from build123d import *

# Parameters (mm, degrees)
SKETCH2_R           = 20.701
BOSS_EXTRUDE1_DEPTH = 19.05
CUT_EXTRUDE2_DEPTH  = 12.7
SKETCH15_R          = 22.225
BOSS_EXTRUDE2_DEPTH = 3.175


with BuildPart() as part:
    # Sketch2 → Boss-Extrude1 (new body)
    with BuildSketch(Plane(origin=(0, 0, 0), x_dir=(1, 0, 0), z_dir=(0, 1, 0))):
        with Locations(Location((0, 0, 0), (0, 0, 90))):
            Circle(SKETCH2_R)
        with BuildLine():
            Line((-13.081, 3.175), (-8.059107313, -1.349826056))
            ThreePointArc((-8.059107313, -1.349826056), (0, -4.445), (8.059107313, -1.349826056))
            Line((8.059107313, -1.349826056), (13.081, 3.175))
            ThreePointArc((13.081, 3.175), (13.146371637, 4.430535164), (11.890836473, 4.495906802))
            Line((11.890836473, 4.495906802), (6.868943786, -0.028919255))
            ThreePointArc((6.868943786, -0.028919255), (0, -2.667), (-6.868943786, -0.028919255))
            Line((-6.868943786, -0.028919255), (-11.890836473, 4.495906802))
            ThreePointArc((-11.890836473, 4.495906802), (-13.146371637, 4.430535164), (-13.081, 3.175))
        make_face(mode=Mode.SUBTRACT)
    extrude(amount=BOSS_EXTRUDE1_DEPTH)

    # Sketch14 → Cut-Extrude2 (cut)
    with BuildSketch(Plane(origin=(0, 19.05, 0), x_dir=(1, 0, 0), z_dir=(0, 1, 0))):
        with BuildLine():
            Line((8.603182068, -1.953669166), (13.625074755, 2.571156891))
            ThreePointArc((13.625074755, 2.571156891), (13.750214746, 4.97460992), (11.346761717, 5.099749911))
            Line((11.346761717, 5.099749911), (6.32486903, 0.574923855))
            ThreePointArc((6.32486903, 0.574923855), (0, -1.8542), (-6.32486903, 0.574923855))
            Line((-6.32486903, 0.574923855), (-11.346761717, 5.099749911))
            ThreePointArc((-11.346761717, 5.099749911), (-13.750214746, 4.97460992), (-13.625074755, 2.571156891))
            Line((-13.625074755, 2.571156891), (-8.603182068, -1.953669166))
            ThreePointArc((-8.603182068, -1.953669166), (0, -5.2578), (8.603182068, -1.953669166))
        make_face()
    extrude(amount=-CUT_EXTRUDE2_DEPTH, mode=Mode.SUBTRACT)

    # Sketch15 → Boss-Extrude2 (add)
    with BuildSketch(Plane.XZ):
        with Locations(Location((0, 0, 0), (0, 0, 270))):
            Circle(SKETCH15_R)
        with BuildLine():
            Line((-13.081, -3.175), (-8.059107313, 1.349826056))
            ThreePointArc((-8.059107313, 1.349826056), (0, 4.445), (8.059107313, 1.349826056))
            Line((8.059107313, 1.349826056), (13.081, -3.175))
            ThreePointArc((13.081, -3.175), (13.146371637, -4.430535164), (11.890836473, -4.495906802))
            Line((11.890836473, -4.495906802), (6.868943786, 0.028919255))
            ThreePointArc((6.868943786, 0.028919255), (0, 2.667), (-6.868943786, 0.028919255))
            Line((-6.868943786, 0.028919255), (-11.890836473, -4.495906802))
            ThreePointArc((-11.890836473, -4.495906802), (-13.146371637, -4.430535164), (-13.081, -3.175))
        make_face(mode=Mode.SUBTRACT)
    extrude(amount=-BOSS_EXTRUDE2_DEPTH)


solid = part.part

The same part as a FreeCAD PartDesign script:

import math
import FreeCAD as App
import Part
import Sketcher

V = App.Vector
Q = App.Units.Quantity

doc = App.newDocument("Part")
body = doc.addObject("PartDesign::Body", "Body")

sketch1 = body.newObject("Sketcher::SketchObject", "Sketch")
sketch1.AttachmentSupport = (doc.getObject("XZ_Plane"), [""])
sketch1.MapMode = "FlatFace"
sketch1.addGeometry(Part.Circle(V(0, 0, 0), V(0, 0, 1), 20.7), False)
sketch1.addGeometry(Part.LineSegment(V(-8.1, 1.3, 0), V(-13.1, -3.2, 0)), False)
sketch1.addGeometry(Part.ArcOfCircle(Part.Circle(V(-12.5, -3.8, 0), V(0, 0, 1), 0.9), math.radians(132), math.radians(312)), False)
sketch1.addGeometry(Part.LineSegment(V(-11.9, -4.5, 0), V(-6.9, 0, 0)), False)
sketch1.addGeometry(Part.ArcOfCircle(Part.Circle(V(0, -7.6, 0), V(0, 0, 1), 10.3), math.radians(48), math.radians(132)), False)
sketch1.addGeometry(Part.LineSegment(V(6.9, 0, 0), V(11.9, -4.5, 0)), False)
sketch1.addGeometry(Part.ArcOfCircle(Part.Circle(V(12.5, -3.8, 0), V(0, 0, 1), 0.9), math.radians(-132), math.radians(48)), False)
sketch1.addGeometry(Part.LineSegment(V(13.1, -3.2, 0), V(8.1, 1.3, 0)), False)
sketch1.addGeometry(Part.ArcOfCircle(Part.Circle(V(0, -7.6, 0), V(0, 0, 1), 12), math.radians(48), math.radians(132)), False)
sketch1.addConstraint(Sketcher.Constraint("Tangent", 1, 2, 2, 1))
sketch1.addConstraint(Sketcher.Constraint("Tangent", 2, 2, 3, 1))
sketch1.addConstraint(Sketcher.Constraint("Tangent", 3, 2, 4, 2))
sketch1.addConstraint(Sketcher.Constraint("Tangent", 4, 1, 5, 1))
sketch1.addConstraint(Sketcher.Constraint("Tangent", 5, 2, 6, 1))
sketch1.addConstraint(Sketcher.Constraint("Tangent", 6, 2, 7, 1))
sketch1.addConstraint(Sketcher.Constraint("Tangent", 7, 2, 8, 1))
sketch1.addConstraint(Sketcher.Constraint("Tangent", 8, 2, 1, 1))
sketch1.addConstraint(Sketcher.Constraint("Coincident", 0, 3, -1, 1))
sketch1.addConstraint(Sketcher.Constraint("Coincident", 8, 3, 4, 3))
sketch1.addConstraint(Sketcher.Constraint("Equal", 2, 6))
sketch1.addConstraint(Sketcher.Constraint("Symmetric", 2, 3, 6, 3, -2))
sketch1.addConstraint(Sketcher.Constraint("PointOnObject", 4, 3, -2))
sketch1.addConstraint(Sketcher.Constraint("Parallel", 1, 3))
sketch1.addConstraint(Sketcher.Constraint("Diameter", 0, Q("1.63 in")))
sketch1.addConstraint(Sketcher.Constraint("Radius", 2, Q("0.035 in")))
sketch1.addConstraint(Sketcher.Constraint("Radius", 4, Q("0.404 in")))
sketch1.addConstraint(Sketcher.Constraint("DistanceY", 4, 3, -1, 1, Q("0.299 in")))
sketch1.addConstraint(Sketcher.Constraint("DistanceX", 1, 2, -1, 1, Q("0.515 in")))
sketch1.addConstraint(Sketcher.Constraint("DistanceY", 1, 2, -1, 1, Q("0.125 in")))
pad1 = body.newObject("PartDesign::Pad", "Pad")
pad1.Profile = sketch1
pad1.Length = Q("0.75 in")
pad1.Reversed = True

sketch2 = body.newObject("Sketcher::SketchObject", "Sketch001")
sketch2.AttachmentSupport = (doc.getObject("XZ_Plane"), [""])
sketch2.MapMode = "FlatFace"
sketch2.AttachmentOffset = App.Placement(V(0, 0, -0.75 * 25.4), App.Rotation())
sketch2.addGeometry(Part.LineSegment(V(8.6, 2, 0), V(13.6, -2.6, 0)), False)
sketch2.addGeometry(Part.ArcOfCircle(Part.Circle(V(12.5, -3.8, 0), V(0, 0, 1), 1.7), math.radians(-132), math.radians(48)), False)
sketch2.addGeometry(Part.LineSegment(V(11.3, -5.1, 0), V(6.3, -0.6, 0)), False)
sketch2.addGeometry(Part.ArcOfCircle(Part.Circle(V(0, -7.6, 0), V(0, 0, 1), 9.4), math.radians(48), math.radians(132)), False)
sketch2.addGeometry(Part.LineSegment(V(-6.3, -0.6, 0), V(-11.3, -5.1, 0)), False)
sketch2.addGeometry(Part.ArcOfCircle(Part.Circle(V(-12.5, -3.8, 0), V(0, 0, 1), 1.7), math.radians(132), math.radians(312)), False)
sketch2.addGeometry(Part.LineSegment(V(-13.6, -2.6, 0), V(-8.6, 2, 0)), False)
sketch2.addGeometry(Part.ArcOfCircle(Part.Circle(V(0, -7.6, 0), V(0, 0, 1), 12.9), math.radians(48), math.radians(132)), False)
sketch2.addConstraint(Sketcher.Constraint("Tangent", 0, 2, 1, 2))
sketch2.addConstraint(Sketcher.Constraint("Tangent", 1, 1, 2, 1))
sketch2.addConstraint(Sketcher.Constraint("Tangent", 2, 2, 3, 1))
sketch2.addConstraint(Sketcher.Constraint("Tangent", 3, 2, 4, 1))
sketch2.addConstraint(Sketcher.Constraint("Tangent", 4, 2, 5, 2))
sketch2.addConstraint(Sketcher.Constraint("Tangent", 5, 1, 6, 1))
sketch2.addConstraint(Sketcher.Constraint("Tangent", 6, 2, 7, 2))
sketch2.addConstraint(Sketcher.Constraint("Tangent", 7, 1, 0, 1))
sketch2.addConstraint(Sketcher.Constraint("Coincident", 7, 3, 3, 3))
sketch2.addConstraint(Sketcher.Constraint("Equal", 1, 5))
sketch2.addConstraint(Sketcher.Constraint("Symmetric", 1, 3, 5, 3, -2))
sketch2.addConstraint(Sketcher.Constraint("PointOnObject", 3, 3, -2))
sketch2.addConstraint(Sketcher.Constraint("Parallel", 0, 2))
sketch2.addConstraint(Sketcher.Constraint("Radius", 1, Q("0.067 in")))
sketch2.addConstraint(Sketcher.Constraint("Radius", 3, Q("0.372 in")))
sketch2.addConstraint(Sketcher.Constraint("DistanceY", 3, 3, -1, 1, Q("0.299 in")))
sketch2.addConstraint(Sketcher.Constraint("DistanceX", -1, 1, 1, 3, 12.485918))
sketch2.addConstraint(Sketcher.Constraint("DistanceX", -1, 1, 1, 1, 11.346762))
pocket1 = body.newObject("PartDesign::Pocket", "Pocket")
pocket1.Profile = sketch2
pocket1.Length = Q("0.5 in")
pocket1.Reversed = True

sketch3 = body.newObject("Sketcher::SketchObject", "Sketch002")
sketch3.AttachmentSupport = (doc.getObject("XZ_Plane"), [""])
sketch3.MapMode = "FlatFace"
sketch3.addGeometry(Part.Circle(V(0, 0, 0), V(0, 0, 1), 22.2), False)
sketch3.addGeometry(Part.ArcOfCircle(Part.Circle(V(-12.5, -3.8, 0), V(0, 0, 1), 0.9), math.radians(132), math.radians(312)), False)
sketch3.addGeometry(Part.LineSegment(V(-13.1, -3.2, 0), V(-8.1, 1.3, 0)), False)
sketch3.addGeometry(Part.ArcOfCircle(Part.Circle(V(0, -7.6, 0), V(0, 0, 1), 12), math.radians(48), math.radians(132)), False)
sketch3.addGeometry(Part.LineSegment(V(8.1, 1.3, 0), V(13.1, -3.2, 0)), False)
sketch3.addGeometry(Part.ArcOfCircle(Part.Circle(V(12.5, -3.8, 0), V(0, 0, 1), 0.9), math.radians(-132), math.radians(48)), False)
sketch3.addGeometry(Part.LineSegment(V(11.9, -4.5, 0), V(6.9, 0, 0)), False)
sketch3.addGeometry(Part.ArcOfCircle(Part.Circle(V(0, -7.6, 0), V(0, 0, 1), 10.3), math.radians(48), math.radians(132)), False)
sketch3.addGeometry(Part.LineSegment(V(-6.9, 0, 0), V(-11.9, -4.5, 0)), False)
sketch3.addConstraint(Sketcher.Constraint("Tangent", 1, 1, 2, 1))
sketch3.addConstraint(Sketcher.Constraint("Tangent", 2, 2, 3, 2))
sketch3.addConstraint(Sketcher.Constraint("Tangent", 3, 1, 4, 1))
sketch3.addConstraint(Sketcher.Constraint("Tangent", 4, 2, 5, 2))
sketch3.addConstraint(Sketcher.Constraint("Tangent", 5, 1, 6, 1))
sketch3.addConstraint(Sketcher.Constraint("Tangent", 6, 2, 7, 1))
sketch3.addConstraint(Sketcher.Constraint("Tangent", 7, 2, 8, 1))
sketch3.addConstraint(Sketcher.Constraint("Tangent", 8, 2, 1, 2))
sketch3.addConstraint(Sketcher.Constraint("Coincident", 0, 3, -1, 1))
sketch3.addConstraint(Sketcher.Constraint("Coincident", 7, 3, 3, 3))
sketch3.addConstraint(Sketcher.Constraint("Equal", 1, 5))
sketch3.addConstraint(Sketcher.Constraint("Symmetric", 1, 3, 5, 3, -2))
sketch3.addConstraint(Sketcher.Constraint("PointOnObject", 3, 3, -2))
sketch3.addConstraint(Sketcher.Constraint("Parallel", 4, 6))
sketch3.addConstraint(Sketcher.Constraint("Diameter", 0, Q("1.75 in")))
sketch3.addConstraint(Sketcher.Constraint("Radius", 1, Q("0.035 in")))
sketch3.addConstraint(Sketcher.Constraint("Radius", 3, Q("0.474 in")))
sketch3.addConstraint(Sketcher.Constraint("DistanceY", 3, 3, -1, 1, Q("0.299 in")))
sketch3.addConstraint(Sketcher.Constraint("DistanceX", 1, 1, -1, 1, Q("0.515 in")))
sketch3.addConstraint(Sketcher.Constraint("DistanceY", 1, 1, -1, 1, Q("0.125 in")))
pad2 = body.newObject("PartDesign::Pad", "Pad001")
pad2.Profile = sketch3
pad2.Length = Q("0.125 in")
pad2.Reversed = True

doc.recompute()
